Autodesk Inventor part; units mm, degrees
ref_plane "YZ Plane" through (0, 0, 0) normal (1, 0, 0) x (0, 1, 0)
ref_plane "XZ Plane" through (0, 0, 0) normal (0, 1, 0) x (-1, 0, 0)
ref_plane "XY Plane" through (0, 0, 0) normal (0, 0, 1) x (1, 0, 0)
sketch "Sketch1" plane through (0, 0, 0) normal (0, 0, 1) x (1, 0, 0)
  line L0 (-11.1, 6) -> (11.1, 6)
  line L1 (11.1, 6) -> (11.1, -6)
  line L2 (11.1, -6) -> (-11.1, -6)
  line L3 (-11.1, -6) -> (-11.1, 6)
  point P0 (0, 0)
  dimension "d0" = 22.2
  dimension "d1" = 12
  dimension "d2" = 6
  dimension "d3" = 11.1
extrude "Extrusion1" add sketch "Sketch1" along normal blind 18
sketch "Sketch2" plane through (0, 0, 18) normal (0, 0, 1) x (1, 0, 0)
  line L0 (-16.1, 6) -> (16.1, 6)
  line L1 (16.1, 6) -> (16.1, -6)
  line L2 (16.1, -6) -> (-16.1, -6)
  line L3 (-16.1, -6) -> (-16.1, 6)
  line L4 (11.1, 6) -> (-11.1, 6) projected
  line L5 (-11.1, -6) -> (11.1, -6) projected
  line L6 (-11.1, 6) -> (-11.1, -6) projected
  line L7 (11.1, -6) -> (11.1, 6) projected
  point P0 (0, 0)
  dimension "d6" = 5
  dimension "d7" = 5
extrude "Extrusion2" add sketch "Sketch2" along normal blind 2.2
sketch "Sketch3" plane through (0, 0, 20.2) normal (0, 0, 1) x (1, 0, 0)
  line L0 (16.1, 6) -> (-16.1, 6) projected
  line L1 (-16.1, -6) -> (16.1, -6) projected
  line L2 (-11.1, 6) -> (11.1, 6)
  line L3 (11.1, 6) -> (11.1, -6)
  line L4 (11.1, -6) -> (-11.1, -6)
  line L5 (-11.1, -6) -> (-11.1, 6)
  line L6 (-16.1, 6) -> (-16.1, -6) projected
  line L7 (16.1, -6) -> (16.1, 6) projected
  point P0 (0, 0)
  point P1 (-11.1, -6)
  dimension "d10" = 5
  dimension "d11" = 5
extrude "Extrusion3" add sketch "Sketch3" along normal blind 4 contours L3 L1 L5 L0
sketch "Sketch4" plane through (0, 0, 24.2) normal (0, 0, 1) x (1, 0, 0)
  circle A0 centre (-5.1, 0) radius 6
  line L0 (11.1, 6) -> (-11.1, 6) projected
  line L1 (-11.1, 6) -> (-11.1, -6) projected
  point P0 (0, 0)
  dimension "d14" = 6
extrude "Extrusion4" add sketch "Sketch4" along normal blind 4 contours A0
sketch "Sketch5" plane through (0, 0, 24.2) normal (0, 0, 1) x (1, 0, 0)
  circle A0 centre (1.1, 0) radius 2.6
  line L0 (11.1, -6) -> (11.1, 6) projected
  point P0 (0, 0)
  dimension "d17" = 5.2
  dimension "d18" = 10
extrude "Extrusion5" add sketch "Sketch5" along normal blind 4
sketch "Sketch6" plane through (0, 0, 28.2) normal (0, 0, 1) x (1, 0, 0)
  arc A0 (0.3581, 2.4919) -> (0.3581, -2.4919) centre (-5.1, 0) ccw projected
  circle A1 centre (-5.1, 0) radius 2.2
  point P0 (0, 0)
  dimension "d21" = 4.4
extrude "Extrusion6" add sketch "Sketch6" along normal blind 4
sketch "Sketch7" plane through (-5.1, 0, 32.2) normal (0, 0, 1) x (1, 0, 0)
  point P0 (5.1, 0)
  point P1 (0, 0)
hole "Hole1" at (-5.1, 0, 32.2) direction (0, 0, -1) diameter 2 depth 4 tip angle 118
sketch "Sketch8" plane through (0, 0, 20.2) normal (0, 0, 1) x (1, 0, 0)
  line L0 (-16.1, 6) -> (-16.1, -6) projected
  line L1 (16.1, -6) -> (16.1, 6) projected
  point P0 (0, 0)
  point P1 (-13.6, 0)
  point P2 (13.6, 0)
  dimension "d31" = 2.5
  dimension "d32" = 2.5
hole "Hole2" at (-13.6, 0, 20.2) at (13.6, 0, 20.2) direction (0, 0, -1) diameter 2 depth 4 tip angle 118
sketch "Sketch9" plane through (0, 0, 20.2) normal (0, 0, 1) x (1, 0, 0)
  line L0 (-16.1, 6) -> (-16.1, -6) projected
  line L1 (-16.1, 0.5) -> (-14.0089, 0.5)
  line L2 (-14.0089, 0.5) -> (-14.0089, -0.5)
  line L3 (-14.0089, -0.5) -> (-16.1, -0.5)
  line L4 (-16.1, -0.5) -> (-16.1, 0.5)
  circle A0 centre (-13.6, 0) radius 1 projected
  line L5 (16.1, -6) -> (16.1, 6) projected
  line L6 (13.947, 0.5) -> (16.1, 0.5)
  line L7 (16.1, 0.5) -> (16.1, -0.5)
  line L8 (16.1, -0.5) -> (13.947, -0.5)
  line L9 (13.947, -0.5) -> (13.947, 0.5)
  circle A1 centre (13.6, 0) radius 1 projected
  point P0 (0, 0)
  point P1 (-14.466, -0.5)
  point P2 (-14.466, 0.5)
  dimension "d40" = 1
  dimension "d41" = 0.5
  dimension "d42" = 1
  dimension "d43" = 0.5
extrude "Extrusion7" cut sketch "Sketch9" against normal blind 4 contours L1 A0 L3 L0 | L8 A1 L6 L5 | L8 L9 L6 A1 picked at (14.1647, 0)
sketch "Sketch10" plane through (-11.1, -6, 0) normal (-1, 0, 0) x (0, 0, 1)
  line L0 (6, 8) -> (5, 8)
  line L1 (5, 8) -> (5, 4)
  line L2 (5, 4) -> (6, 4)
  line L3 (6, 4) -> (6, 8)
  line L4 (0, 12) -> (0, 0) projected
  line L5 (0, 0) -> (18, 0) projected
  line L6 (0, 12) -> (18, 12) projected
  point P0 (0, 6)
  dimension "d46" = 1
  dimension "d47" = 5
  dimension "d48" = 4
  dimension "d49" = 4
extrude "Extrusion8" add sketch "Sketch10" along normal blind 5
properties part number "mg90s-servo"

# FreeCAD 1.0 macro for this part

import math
import FreeCAD as App
import Part
import Sketcher
Q = App.Units.Quantity

doc = App.newDocument("Part")
body = doc.addObject("PartDesign::Body", "Body")

# Sketch on XY plane
sketch1 = body.newObject("Sketcher::SketchObject", "Sketch")
sketch1.AttachmentSupport = (doc.getObject("XY_Plane"), [""])
sketch1.MapMode = "FlatFace"
sketch1.addGeometry(Part.LineSegment(App.Vector(11, 6, 0), App.Vector(-11, 6, 0)), False)
sketch1.addGeometry(Part.LineSegment(App.Vector(-11, 6, 0), App.Vector(-11, -6, 0)), False)
sketch1.addGeometry(Part.LineSegment(App.Vector(-11, -6, 0), App.Vector(11, -6, 0)), False)
sketch1.addGeometry(Part.LineSegment(App.Vector(11, -6, 0), App.Vector(11, 6, 0)), False)
sketch1.addConstraint(Sketcher.Constraint("Coincident", 0, 2, 1, 1))
sketch1.addConstraint(Sketcher.Constraint("Coincident", 1, 2, 2, 1))
sketch1.addConstraint(Sketcher.Constraint("Coincident", 2, 2, 3, 1))
sketch1.addConstraint(Sketcher.Constraint("Coincident", 3, 2, 0, 1))
sketch1.addConstraint(Sketcher.Constraint("Horizontal", 0))
sketch1.addConstraint(Sketcher.Constraint("Vertical", 1))
sketch1.addConstraint(Sketcher.Constraint("Horizontal", 2))
sketch1.addConstraint(Sketcher.Constraint("Vertical", 3))
sketch1.addConstraint(Sketcher.Constraint("Symmetric", 0, 2, 2, 2, -1, 1))
sketch1.addConstraint(Sketcher.Constraint("DistanceY", 1, 2, 1, 1, Q("12 mm")))
sketch1.addConstraint(Sketcher.Constraint("DistanceX", 0, 2, 0, 1, Q("22.2 mm")))
pad1 = body.newObject("PartDesign::Pad", "Pad")
pad1.Profile = sketch1
pad1.Length = 18

# Sketch on XY plane
sketch2 = body.newObject("Sketcher::SketchObject", "Sketch001")
sketch2.AttachmentSupport = (doc.getObject("XY_Plane"), [""])
sketch2.MapMode = "FlatFace"
sketch2.AttachmentOffset = App.Placement(App.Vector(0, 0, 18), App.Rotation())
sketch2.addGeometry(Part.LineSegment(App.Vector(-16, 6, 0), App.Vector(-16, -6, 0)), False)
sketch2.addGeometry(Part.LineSegment(App.Vector(-16, -6, 0), App.Vector(16, -6, 0)), False)
sketch2.addGeometry(Part.LineSegment(App.Vector(16, -6, 0), App.Vector(16, 6, 0)), False)
sketch2.addGeometry(Part.LineSegment(App.Vector(16, 6, 0), App.Vector(-16, 6, 0)), False)
sketch2.addConstraint(Sketcher.Constraint("Coincident", 0, 2, 1, 1))
sketch2.addConstraint(Sketcher.Constraint("Coincident", 1, 2, 2, 1))
sketch2.addConstraint(Sketcher.Constraint("Coincident", 2, 2, 3, 1))
sketch2.addConstraint(Sketcher.Constraint("Coincident", 3, 2, 0, 1))
sketch2.addConstraint(Sketcher.Constraint("Vertical", 0))
sketch2.addConstraint(Sketcher.Constraint("Horizontal", 1))
sketch2.addConstraint(Sketcher.Constraint("Vertical", 2))
sketch2.addConstraint(Sketcher.Constraint("Horizontal", 3))
sketch2.addConstraint(Sketcher.Constraint("Symmetric", 0, 2, 2, 2, -1, 1))
sketch2.addConstraint(Sketcher.Constraint("DistanceY", 0, 2, 0, 1, Q("12 mm")))
sketch2.addConstraint(Sketcher.Constraint("DistanceX", 1, 1, 1, 2, Q("32.2 mm")))
pad2 = body.newObject("PartDesign::Pad", "Pad001")
pad2.Profile = sketch2
pad2.Length = 2.2

# Sketch on XY plane
sketch3 = body.newObject("Sketcher::SketchObject", "Sketch002")
sketch3.AttachmentSupport = (doc.getObject("XY_Plane"), [""])
sketch3.MapMode = "FlatFace"
sketch3.AttachmentOffset = App.Placement(App.Vector(0, 0, 20.2), App.Rotation())
sketch3.addGeometry(Part.LineSegment(App.Vector(11, -6, 0), App.Vector(11, 6, 0)), False)
sketch3.addGeometry(Part.LineSegment(App.Vector(11, 6, 0), App.Vector(-11, 6, 0)), False)
sketch3.addGeometry(Part.LineSegment(App.Vector(-11, 6, 0), App.Vector(-11, -6, 0)), False)
sketch3.addGeometry(Part.LineSegment(App.Vector(-11, -6, 0), App.Vector(11, -6, 0)), False)
sketch3.addConstraint(Sketcher.Constraint("Coincident", 0, 2, 1, 1))
sketch3.addConstraint(Sketcher.Constraint("Coincident", 1, 2, 2, 1))
sketch3.addConstraint(Sketcher.Constraint("Coincident", 2, 2, 3, 1))
sketch3.addConstraint(Sketcher.Constraint("Coincident", 3, 2, 0, 1))
sketch3.addConstraint(Sketcher.Constraint("Vertical", 0))
sketch3.addConstraint(Sketcher.Constraint("Horizontal", 1))
sketch3.addConstraint(Sketcher.Constraint("Vertical", 2))
sketch3.addConstraint(Sketcher.Constraint("Horizontal", 3))
sketch3.addConstraint(Sketcher.Constraint("Symmetric", 0, 2, 2, 2, -1, 1))
sketch3.addConstraint(Sketcher.Constraint("DistanceY", 0, 1, 0, 2, Q("12 mm")))
sketch3.addConstraint(Sketcher.Constraint("DistanceX", 1, 2, 1, 1, Q("22.2 mm")))
pad3 = body.newObject("PartDesign::Pad", "Pad002")
pad3.Profile = sketch3
pad3.Length = 4

# Sketch on XY plane
sketch4 = body.newObject("Sketcher::SketchObject", "Sketch003")
sketch4.AttachmentSupport = (doc.getObject("XY_Plane"), [""])
sketch4.MapMode = "FlatFace"
sketch4.AttachmentOffset = App.Placement(App.Vector(0, 0, 24.2), App.Rotation())
sketch4.addGeometry(Part.Circle(App.Vector(-5, 0, 0), App.Vector(0, 0, 1), 6), False)
sketch4.addConstraint(Sketcher.Constraint("PointOnObject", 0, 3, -1))
sketch4.addConstraint(Sketcher.Constraint("Diameter", 0, Q("12 mm")))
sketch4.addConstraint(Sketcher.Constraint("DistanceX", 0, 3, -1, 1, Q("5.1 mm")))
pad4 = body.newObject("PartDesign::Pad", "Pad003")
pad4.Profile = sketch4
pad4.Length = 4

# Sketch on XY plane
sketch5 = body.newObject("Sketcher::SketchObject", "Sketch004")
sketch5.AttachmentSupport = (doc.getObject("XY_Plane"), [""])
sketch5.MapMode = "FlatFace"
sketch5.AttachmentOffset = App.Placement(App.Vector(0, 0, 24.2), App.Rotation())
sketch5.addGeometry(Part.Circle(App.Vector(1.1, 0, 0), App.Vector(0, 0, 1), 2.6), False)
sketch5.addConstraint(Sketcher.Constraint("PointOnObject", 0, 3, -1))
sketch5.addConstraint(Sketcher.Constraint("Diameter", 0, Q("5.2 mm")))
sketch5.addConstraint(Sketcher.Constraint("DistanceX", -1, 1, 0, 3, Q("1.1 mm")))
pad5 = body.newObject("PartDesign::Pad", "Pad004")
pad5.Profile = sketch5
pad5.Length = 4

# Sketch on XY plane
sketch6 = body.newObject("Sketcher::SketchObject", "Sketch005")
sketch6.AttachmentSupport = (doc.getObject("XY_Plane"), [""])
sketch6.MapMode = "FlatFace"
sketch6.AttachmentOffset = App.Placement(App.Vector(0, 0, 28.2), App.Rotation())
sketch6.addGeometry(Part.Circle(App.Vector(-5.1, 0, 0), App.Vector(0, 0, 1), 2.2), False)
sketch6.addConstraint(Sketcher.Constraint("PointOnObject", 0, 3, -1))
sketch6.addConstraint(Sketcher.Constraint("Diameter", 0, Q("4.4 mm")))
sketch6.addConstraint(Sketcher.Constraint("DistanceX", 0, 3, -1, 1, Q("5.1 mm")))
pad6 = body.newObject("PartDesign::Pad", "Pad005")
pad6.Profile = sketch6
pad6.Length = 4

# Sketch on XY plane
sketch7 = body.newObject("Sketcher::SketchObject", "Sketch006")
sketch7.AttachmentSupport = (doc.getObject("XY_Plane"), [""])
sketch7.MapMode = "FlatFace"
sketch7.AttachmentOffset = App.Placement(App.Vector(0, 0, 32.2), App.Rotation())
sketch7.addGeometry(Part.Circle(App.Vector(-5.1, 0, 0), App.Vector(0, 0, 1), 1), False)
sketch7.addConstraint(Sketcher.Constraint("PointOnObject", 0, 3, -1))
sketch7.addConstraint(Sketcher.Constraint("Diameter", 0, Q("2 mm")))
sketch7.addConstraint(Sketcher.Constraint("DistanceX", 0, 3, -1, 1, Q("5.1 mm")))
doc.recompute()
hole = body.newObject("PartDesign::Hole", "Hole")
hole.Profile = sketch7
hole.ThreadType = "None"
hole.Diameter = 2
hole.DepthType = "Dimension"
hole.Depth = 4
hole.DrillPoint = "Angled"
hole.DrillPointAngle = 118

# Sketch on XY plane
sketch8 = body.newObject("Sketcher::SketchObject", "Sketch007")
sketch8.AttachmentSupport = (doc.getObject("XY_Plane"), [""])
sketch8.MapMode = "FlatFace"
sketch8.AttachmentOffset = App.Placement(App.Vector(0, 0, 20.2), App.Rotation())
sketch8.addGeometry(Part.Circle(App.Vector(-13.6, 0, 0), App.Vector(0, 0, 1), 1), False)
sketch8.addGeometry(Part.Circle(App.Vector(13.6, 0, 0), App.Vector(0, 0, 1), 1), False)
sketch8.addConstraint(Sketcher.Constraint("Equal", 0, 1))
sketch8.addConstraint(Sketcher.Constraint("Symmetric", 0, 3, 1, 3, -1, 1))
sketch8.addConstraint(Sketcher.Constraint("PointOnObject", 0, 3, -1))
sketch8.addConstraint(Sketcher.Constraint("Diameter", 0, Q("2 mm")))
sketch8.addConstraint(Sketcher.Constraint("DistanceX", 0, 3, -1, 1, Q("13.6 mm")))
doc.recompute()
hole2 = body.newObject("PartDesign::Hole", "Hole001")
hole2.Profile = sketch8
hole2.ThreadType = "None"
hole2.Diameter = 2
hole2.DepthType = "Dimension"
hole2.Depth = 4
hole2.DrillPoint = "Angled"
hole2.DrillPointAngle = 118

# Sketch on XY plane
sketch9 = body.newObject("Sketcher::SketchObject", "Sketch008")
sketch9.AttachmentSupport = (doc.getObject("XY_Plane"), [""])
sketch9.MapMode = "FlatFace"
sketch9.AttachmentOffset = App.Placement(App.Vector(0, 0, 20.2), App.Rotation())
sketch9.addGeometry(Part.LineSegment(App.Vector(-14.5, 0.5, 0), App.Vector(-16.1, 0.5, 0)), False)
sketch9.addGeometry(Part.LineSegment(App.Vector(-16.1, 0.5, 0), App.Vector(-16.1, -0.5, 0)), False)
sketch9.addGeometry(Part.LineSegment(App.Vector(-16.1, -0.5, 0), App.Vector(-14.5, -0.5, 0)), False)
sketch9.addGeometry(Part.ArcOfCircle(Part.Circle(App.Vector(-13.6, 0, 0), App.Vector(0, 0, 1), 1), math.radians(150), math.radians(210)), False)
sketch9.addGeometry(Part.LineSegment(App.Vector(16.1, -0.5, 0), App.Vector(16.1, 0.5, 0)), False)
sketch9.addGeometry(Part.LineSegment(App.Vector(16.1, 0.5, 0), App.Vector(13.9, 0.5, 0)), False)
sketch9.addGeometry(Part.LineSegment(App.Vector(13.9, 0.5, 0), App.Vector(13.9, -0.5, 0)), False)
sketch9.addGeometry(Part.LineSegment(App.Vector(13.9, -0.5, 0), App.Vector(16.1, -0.5, 0)), False)
sketch9.addConstraint(Sketcher.Constraint("Coincident", 0, 2, 1, 1))
sketch9.addConstraint(Sketcher.Constraint("Coincident", 1, 2, 2, 1))
sketch9.addConstraint(Sketcher.Constraint("Coincident", 2, 2, 3, 2))
sketch9.addConstraint(Sketcher.Constraint("Coincident", 3, 1, 0, 1))
sketch9.addConstraint(Sketcher.Constraint("Coincident", 4, 2, 5, 1))
sketch9.addConstraint(Sketcher.Constraint("Coincident", 5, 2, 6, 1))
sketch9.addConstraint(Sketcher.Constraint("Coincident", 6, 2, 7, 1))
sketch9.addConstraint(Sketcher.Constraint("Coincident", 7, 2, 4, 1))
sketch9.addConstraint(Sketcher.Constraint("Horizontal", 0))
sketch9.addConstraint(Sketcher.Constraint("Vertical", 1))
sketch9.addConstraint(Sketcher.Constraint("Horizontal", 2))
sketch9.addConstraint(Sketcher.Constraint("Vertical", 4))
sketch9.addConstraint(Sketcher.Constraint("Horizontal", 5))
sketch9.addConstraint(Sketcher.Constraint("Vertical", 6))
sketch9.addConstraint(Sketcher.Constraint("Horizontal", 7))
sketch9.addConstraint(Sketcher.Constraint("Symmetric", 1, 2, 4, 2, -1, 1))
sketch9.addConstraint(Sketcher.Constraint("Symmetric", 2, 2, 3, 1, -1))
sketch9.addConstraint(Sketcher.Constraint("Horizontal", 2, 2, 6, 2))
sketch9.addConstraint(Sketcher.Constraint("Radius", 3, Q("1 mm")))
sketch9.addConstraint(Sketcher.Constraint("DistanceY", 1, 2, 1, 1, Q("1 mm")))
sketch9.addConstraint(Sketcher.Constraint("DistanceX", 3, 3, -1, 1, Q("13.6 mm")))
sketch9.addConstraint(Sketcher.Constraint("DistanceX", 0, 2, -1, 1, Q("16.1 mm")))
sketch9.addConstraint(Sketcher.Constraint("DistanceX", 5, 2, 5, 1, Q("2.153 mm")))
pocket1 = body.newObject("PartDesign::Pocket", "Pocket")
pocket1.Profile = sketch9
pocket1.Length = 4

# Sketch on YZ plane
sketch10 = body.newObject("Sketcher::SketchObject", "Sketch009")
sketch10.AttachmentSupport = (doc.getObject("YZ_Plane"), [""])
sketch10.MapMode = "FlatFace"
sketch10.AttachmentOffset = App.Placement(App.Vector(0, 0, -11.1), App.Rotation())
sketch10.addGeometry(Part.LineSegment(App.Vector(-2, 6, 0), App.Vector(2, 6, 0)), False)
sketch10.addGeometry(Part.LineSegment(App.Vector(2, 6, 0), App.Vector(2, 5, 0)), False)
sketch10.addGeometry(Part.LineSegment(App.Vector(2, 5, 0), App.Vector(-2, 5, 0)), False)
sketch10.addGeometry(Part.LineSegment(App.Vector(-2, 5, 0), App.Vector(-2, 6, 0)), False)
sketch10.addConstraint(Sketcher.Constraint("Coincident", 0, 2, 1, 1))
sketch10.addConstraint(Sketcher.Constraint("Coincident", 1, 2, 2, 1))
sketch10.addConstraint(Sketcher.Constraint("Coincident", 2, 2, 3, 1))
sketch10.addConstraint(Sketcher.Constraint("Coincident", 3, 2, 0, 1))
sketch10.addConstraint(Sketcher.Constraint("Horizontal", 0))
sketch10.addConstraint(Sketcher.Constraint("Vertical", 1))
sketch10.addConstraint(Sketcher.Constraint("Horizontal", 2))
sketch10.addConstraint(Sketcher.Constraint("Vertical", 3))
sketch10.addConstraint(Sketcher.Constraint("DistanceX", 0, 1, 0, 2, Q("4 mm")))
sketch10.addConstraint(Sketcher.Constraint("DistanceY", 1, 2, 1, 1, Q("1 mm")))
sketch10.addConstraint(Sketcher.Constraint("DistanceY", -1, 1, 1, 2, Q("5 mm")))
sketch10.addConstraint(Sketcher.Constraint("DistanceX", -1, 1, 0, 2, Q("2 mm")))
pad7 = body.newObject("PartDesign::Pad", "Pad006")
pad7.Profile = sketch10
pad7.Length = 5
pad7.Reversed = True

doc.recompute()
